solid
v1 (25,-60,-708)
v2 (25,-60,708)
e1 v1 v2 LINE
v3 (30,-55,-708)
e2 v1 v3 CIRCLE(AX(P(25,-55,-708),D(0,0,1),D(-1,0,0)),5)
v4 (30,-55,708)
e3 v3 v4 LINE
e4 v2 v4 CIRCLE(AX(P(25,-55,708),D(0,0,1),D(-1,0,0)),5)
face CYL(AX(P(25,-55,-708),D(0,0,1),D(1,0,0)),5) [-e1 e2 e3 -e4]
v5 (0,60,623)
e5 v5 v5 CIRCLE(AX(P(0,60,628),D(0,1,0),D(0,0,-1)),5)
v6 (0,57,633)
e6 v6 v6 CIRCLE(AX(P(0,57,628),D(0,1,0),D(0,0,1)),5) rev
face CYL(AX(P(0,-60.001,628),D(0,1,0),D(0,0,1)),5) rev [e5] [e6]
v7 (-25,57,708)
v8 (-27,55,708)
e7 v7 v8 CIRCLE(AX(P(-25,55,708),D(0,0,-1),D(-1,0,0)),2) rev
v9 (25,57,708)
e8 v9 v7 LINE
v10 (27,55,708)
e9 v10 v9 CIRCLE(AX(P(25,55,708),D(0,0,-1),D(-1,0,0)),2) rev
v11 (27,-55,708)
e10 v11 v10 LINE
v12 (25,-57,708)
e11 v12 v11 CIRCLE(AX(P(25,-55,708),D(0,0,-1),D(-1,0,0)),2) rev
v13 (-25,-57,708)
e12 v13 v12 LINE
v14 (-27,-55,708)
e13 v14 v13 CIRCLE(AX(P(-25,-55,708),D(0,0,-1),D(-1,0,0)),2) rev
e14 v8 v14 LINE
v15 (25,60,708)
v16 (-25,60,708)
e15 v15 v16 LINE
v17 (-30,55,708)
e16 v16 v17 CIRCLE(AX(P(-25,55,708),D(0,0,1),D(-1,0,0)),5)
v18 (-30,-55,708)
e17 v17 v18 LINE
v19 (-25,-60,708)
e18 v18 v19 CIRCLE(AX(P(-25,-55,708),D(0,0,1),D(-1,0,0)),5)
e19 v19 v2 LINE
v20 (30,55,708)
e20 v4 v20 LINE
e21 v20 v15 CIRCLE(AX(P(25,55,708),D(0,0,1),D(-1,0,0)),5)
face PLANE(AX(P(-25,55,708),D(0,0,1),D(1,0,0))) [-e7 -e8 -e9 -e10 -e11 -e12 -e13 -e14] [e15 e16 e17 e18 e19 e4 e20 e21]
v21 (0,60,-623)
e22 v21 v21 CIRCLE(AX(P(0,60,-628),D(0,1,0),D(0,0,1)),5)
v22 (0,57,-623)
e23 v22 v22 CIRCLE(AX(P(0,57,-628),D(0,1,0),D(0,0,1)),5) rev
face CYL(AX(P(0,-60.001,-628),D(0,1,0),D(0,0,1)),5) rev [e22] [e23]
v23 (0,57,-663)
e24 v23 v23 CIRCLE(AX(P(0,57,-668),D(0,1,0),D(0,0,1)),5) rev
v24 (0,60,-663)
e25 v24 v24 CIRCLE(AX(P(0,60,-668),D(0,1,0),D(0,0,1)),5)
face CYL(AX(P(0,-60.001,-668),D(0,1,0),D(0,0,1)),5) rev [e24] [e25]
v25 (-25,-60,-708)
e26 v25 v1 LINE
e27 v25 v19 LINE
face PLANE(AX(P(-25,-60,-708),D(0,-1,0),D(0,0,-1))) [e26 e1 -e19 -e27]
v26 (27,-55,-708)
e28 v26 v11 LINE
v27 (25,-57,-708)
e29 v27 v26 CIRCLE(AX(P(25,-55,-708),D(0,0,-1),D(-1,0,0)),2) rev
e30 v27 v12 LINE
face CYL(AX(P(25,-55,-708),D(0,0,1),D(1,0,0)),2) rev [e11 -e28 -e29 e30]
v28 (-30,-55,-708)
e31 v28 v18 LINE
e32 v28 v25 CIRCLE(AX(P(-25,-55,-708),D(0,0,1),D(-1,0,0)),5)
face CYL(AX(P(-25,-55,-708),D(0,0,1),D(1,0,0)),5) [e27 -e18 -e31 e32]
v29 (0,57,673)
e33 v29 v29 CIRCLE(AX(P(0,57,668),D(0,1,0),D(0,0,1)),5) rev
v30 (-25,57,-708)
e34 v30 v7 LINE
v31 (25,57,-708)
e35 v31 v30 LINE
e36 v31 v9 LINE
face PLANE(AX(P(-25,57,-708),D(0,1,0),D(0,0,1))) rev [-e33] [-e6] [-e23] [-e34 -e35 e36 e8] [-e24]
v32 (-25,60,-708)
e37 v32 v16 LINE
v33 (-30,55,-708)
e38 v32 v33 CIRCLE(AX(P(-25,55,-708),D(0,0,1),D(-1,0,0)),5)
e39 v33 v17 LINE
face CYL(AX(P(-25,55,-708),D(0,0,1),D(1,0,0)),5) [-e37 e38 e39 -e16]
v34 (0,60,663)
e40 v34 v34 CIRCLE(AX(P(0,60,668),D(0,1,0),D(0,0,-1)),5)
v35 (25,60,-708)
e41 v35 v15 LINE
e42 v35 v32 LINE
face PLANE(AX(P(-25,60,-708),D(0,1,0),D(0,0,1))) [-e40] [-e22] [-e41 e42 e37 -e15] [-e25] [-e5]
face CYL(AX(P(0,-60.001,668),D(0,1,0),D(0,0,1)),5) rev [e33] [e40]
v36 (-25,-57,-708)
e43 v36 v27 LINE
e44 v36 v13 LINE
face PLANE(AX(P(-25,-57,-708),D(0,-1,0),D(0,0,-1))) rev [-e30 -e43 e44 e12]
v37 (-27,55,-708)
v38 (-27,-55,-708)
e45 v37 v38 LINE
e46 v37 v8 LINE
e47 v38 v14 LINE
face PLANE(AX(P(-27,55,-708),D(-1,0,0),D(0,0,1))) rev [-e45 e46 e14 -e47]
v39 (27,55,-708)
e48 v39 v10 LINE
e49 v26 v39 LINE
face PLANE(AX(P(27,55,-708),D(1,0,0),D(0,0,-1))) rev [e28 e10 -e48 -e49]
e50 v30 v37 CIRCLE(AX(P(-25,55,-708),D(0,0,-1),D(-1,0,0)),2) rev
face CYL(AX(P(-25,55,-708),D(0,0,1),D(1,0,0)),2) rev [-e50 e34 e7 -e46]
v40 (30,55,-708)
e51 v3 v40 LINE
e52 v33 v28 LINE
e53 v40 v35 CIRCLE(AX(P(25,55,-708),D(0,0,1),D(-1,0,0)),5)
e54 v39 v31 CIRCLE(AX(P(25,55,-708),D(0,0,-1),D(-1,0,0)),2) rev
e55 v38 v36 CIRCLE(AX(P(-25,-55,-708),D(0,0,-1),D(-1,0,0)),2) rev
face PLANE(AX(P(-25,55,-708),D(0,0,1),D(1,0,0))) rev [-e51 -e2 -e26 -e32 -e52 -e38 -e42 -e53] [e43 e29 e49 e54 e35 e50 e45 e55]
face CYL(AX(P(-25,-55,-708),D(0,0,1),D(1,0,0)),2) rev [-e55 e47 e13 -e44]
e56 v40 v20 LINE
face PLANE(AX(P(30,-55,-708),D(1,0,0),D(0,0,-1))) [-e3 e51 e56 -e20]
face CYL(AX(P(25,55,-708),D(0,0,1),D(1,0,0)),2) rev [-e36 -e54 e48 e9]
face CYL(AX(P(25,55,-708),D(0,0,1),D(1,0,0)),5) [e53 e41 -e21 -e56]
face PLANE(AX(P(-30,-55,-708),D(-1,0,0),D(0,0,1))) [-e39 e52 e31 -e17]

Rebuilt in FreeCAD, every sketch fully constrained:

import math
import FreeCAD as App
import Part
import Sketcher

V = App.Vector

doc = App.newDocument("Part")
body = doc.addObject("PartDesign::Body", "Body")

sketch1 = doc.addObject("Sketcher::SketchObject", "Sketch")
body.addObject(sketch1)
sketch1.AttachmentSupport = (doc.XY_Plane, [""])
sketch1.MapMode = "FlatFace"
sketch1.addGeometry([
    Part.LineSegment(V(-25, -60, 0), V(25, -60, 0)),
    Part.ArcOfCircle(Part.Circle(V(25, -55, 0), V(0, 0, 1), 5), math.radians(-90), math.radians(0)),
    Part.LineSegment(V(30, -55, 0), V(30, 55, 0)),
    Part.ArcOfCircle(Part.Circle(V(25, 55, 0), V(0, 0, 1), 5), math.radians(0), math.radians(90)),
    Part.LineSegment(V(25, 60, 0), V(-25, 60, 0)),
    Part.ArcOfCircle(Part.Circle(V(-25, 55, 0), V(0, 0, 1), 5), math.radians(90), math.radians(180)),
    Part.LineSegment(V(-30, 55, 0), V(-30, -55, 0)),
    Part.ArcOfCircle(Part.Circle(V(-25, -55, 0), V(0, 0, 1), 5), math.radians(180), math.radians(270)),
    Part.LineSegment(V(25, -57, 0), V(-25, -57, 0)),
    Part.ArcOfCircle(Part.Circle(V(-25, -55, 0), V(0, 0, 1), 2), math.radians(-180), math.radians(-90)),
    Part.LineSegment(V(-27, -55, 0), V(-27, 55, 0)),
    Part.ArcOfCircle(Part.Circle(V(-25, 55, 0), V(0, 0, 1), 2), math.radians(90), math.radians(180)),
    Part.LineSegment(V(-25, 57, 0), V(25, 57, 0)),
    Part.ArcOfCircle(Part.Circle(V(25, 55, 0), V(0, 0, 1), 2), math.radians(0), math.radians(90)),
    Part.LineSegment(V(27, 55, 0), V(27, -55, 0)),
    Part.ArcOfCircle(Part.Circle(V(25, -55, 0), V(0, 0, 1), 2), math.radians(-90), math.radians(0)),
], False)
sketch1.addConstraint([
    Sketcher.Constraint("Tangent", 0, 2, 1, 1),
    Sketcher.Constraint("Tangent", 1, 2, 2, 1),
    Sketcher.Constraint("Tangent", 2, 2, 3, 1),
    Sketcher.Constraint("Tangent", 3, 2, 4, 1),
    Sketcher.Constraint("Tangent", 4, 2, 5, 1),
    Sketcher.Constraint("Tangent", 5, 2, 6, 1),
    Sketcher.Constraint("Tangent", 6, 2, 7, 1),
    Sketcher.Constraint("Tangent", 7, 2, 0, 1),
    Sketcher.Constraint("Tangent", 8, 2, 9, 2),
    Sketcher.Constraint("Tangent", 9, 1, 10, 1),
    Sketcher.Constraint("Tangent", 10, 2, 11, 2),
    Sketcher.Constraint("Tangent", 11, 1, 12, 1),
    Sketcher.Constraint("Tangent", 12, 2, 13, 2),
    Sketcher.Constraint("Tangent", 13, 1, 14, 1),
    Sketcher.Constraint("Tangent", 14, 2, 15, 2),
    Sketcher.Constraint("Tangent", 15, 1, 8, 1),
    Sketcher.Constraint("Horizontal", 0),
    Sketcher.Constraint("Vertical", 2),
    Sketcher.Constraint("Horizontal", 4),
    Sketcher.Constraint("Vertical", 6),
    Sketcher.Constraint("Horizontal", 8),
    Sketcher.Constraint("Vertical", 10),
    Sketcher.Constraint("Horizontal", 12),
    Sketcher.Constraint("Vertical", 14),
    Sketcher.Constraint("Coincident", 9, 3, 7, 3),
    Sketcher.Constraint("Coincident", 11, 3, 5, 3),
    Sketcher.Constraint("Coincident", 13, 3, 3, 3),
    Sketcher.Constraint("Equal", 1, 3),
    Sketcher.Constraint("Equal", 3, 5),
    Sketcher.Constraint("Equal", 5, 7),
    Sketcher.Constraint("Equal", 13, 15),
    Sketcher.Constraint("Symmetric", 1, 3, 5, 3, -1, 1),
    Sketcher.Constraint("Radius", 1, 5.0),
    Sketcher.Constraint("Radius", 9, 2.0),
    Sketcher.Constraint("DistanceX", 0, 1, 0, 2, 50.0),
    Sketcher.Constraint("DistanceY", 2, 1, 2, 2, 110.0),
])
pad1 = doc.addObject("PartDesign::Pad", "Pad")
body.addObject(pad1)
pad1.Profile = sketch1
pad1.Type = "TwoLengths"
pad1.Length = 708
pad1.Length2 = 708

sketch2 = doc.addObject("Sketcher::SketchObject", "Sketch001")
body.addObject(sketch2)
sketch2.AttachmentSupport = (doc.XZ_Plane, [""])
sketch2.MapMode = "FlatFace"
sketch2.AttachmentOffset = App.Placement(V(0, 0, -60), App.Rotation())
sketch2.addGeometry(Part.Circle(V(0, -668, 0), V(0, 0, 1), 5), False)
sketch2.addConstraint([
    Sketcher.Constraint("PointOnObject", 0, 3, -2),
    Sketcher.Constraint("Diameter", 0, 10.0),
    Sketcher.Constraint("DistanceY", 0, 3, -1, 1, 668.0),
])
pocket1 = doc.addObject("PartDesign::Pocket", "Pocket")
body.addObject(pocket1)
pocket1.Profile = sketch2
pocket1.Type = "UpToFirst"
pocket1.Reversed = True

sketch3 = doc.addObject("Sketcher::SketchObject", "Sketch002")
body.addObject(sketch3)
sketch3.AttachmentSupport = (doc.XZ_Plane, [""])
sketch3.MapMode = "FlatFace"
sketch3.AttachmentOffset = App.Placement(V(0, 0, -60), App.Rotation())
sketch3.addGeometry(Part.Circle(V(0, -628, 0), V(0, 0, 1), 5), False)
sketch3.addConstraint([
    Sketcher.Constraint("PointOnObject", 0, 3, -2),
    Sketcher.Constraint("Diameter", 0, 10.0),
    Sketcher.Constraint("DistanceY", 0, 3, -1, 1, 628.0),
])
pocket2 = doc.addObject("PartDesign::Pocket", "Pocket001")
body.addObject(pocket2)
pocket2.Profile = sketch3
pocket2.Type = "UpToFirst"
pocket2.Reversed = True

sketch4 = doc.addObject("Sketcher::SketchObject", "Sketch003")
body.addObject(sketch4)
sketch4.AttachmentSupport = (doc.XZ_Plane, [""])
sketch4.MapMode = "FlatFace"
sketch4.AttachmentOffset = App.Placement(V(0, 0, -60), App.Rotation())
sketch4.addGeometry(Part.Circle(V(0, 628, 0), V(0, 0, 1), 5), False)
sketch4.addConstraint([
    Sketcher.Constraint("PointOnObject", 0, 3, -2),
    Sketcher.Constraint("Diameter", 0, 10.0),
    Sketcher.Constraint("DistanceY", -1, 1, 0, 3, 628.0),
])
pocket3 = doc.addObject("PartDesign::Pocket", "Pocket002")
body.addObject(pocket3)
pocket3.Profile = sketch4
pocket3.Type = "UpToFirst"
pocket3.Reversed = True

sketch5 = doc.addObject("Sketcher::SketchObject", "Sketch004")
body.addObject(sketch5)
sketch5.AttachmentSupport = (doc.XZ_Plane, [""])
sketch5.MapMode = "FlatFace"
sketch5.AttachmentOffset = App.Placement(V(0, 0, -60), App.Rotation())
sketch5.addGeometry(Part.Circle(V(0, 668, 0), V(0, 0, 1), 5), False)
sketch5.addConstraint([
    Sketcher.Constraint("PointOnObject", 0, 3, -2),
    Sketcher.Constraint("Diameter", 0, 10.0),
    Sketcher.Constraint("DistanceY", -1, 1, 0, 3, 668.0),
])
pocket4 = doc.addObject("PartDesign::Pocket", "Pocket003")
body.addObject(pocket4)
pocket4.Profile = sketch5
pocket4.Type = "UpToFirst"
pocket4.Reversed = True

doc.recompute()
